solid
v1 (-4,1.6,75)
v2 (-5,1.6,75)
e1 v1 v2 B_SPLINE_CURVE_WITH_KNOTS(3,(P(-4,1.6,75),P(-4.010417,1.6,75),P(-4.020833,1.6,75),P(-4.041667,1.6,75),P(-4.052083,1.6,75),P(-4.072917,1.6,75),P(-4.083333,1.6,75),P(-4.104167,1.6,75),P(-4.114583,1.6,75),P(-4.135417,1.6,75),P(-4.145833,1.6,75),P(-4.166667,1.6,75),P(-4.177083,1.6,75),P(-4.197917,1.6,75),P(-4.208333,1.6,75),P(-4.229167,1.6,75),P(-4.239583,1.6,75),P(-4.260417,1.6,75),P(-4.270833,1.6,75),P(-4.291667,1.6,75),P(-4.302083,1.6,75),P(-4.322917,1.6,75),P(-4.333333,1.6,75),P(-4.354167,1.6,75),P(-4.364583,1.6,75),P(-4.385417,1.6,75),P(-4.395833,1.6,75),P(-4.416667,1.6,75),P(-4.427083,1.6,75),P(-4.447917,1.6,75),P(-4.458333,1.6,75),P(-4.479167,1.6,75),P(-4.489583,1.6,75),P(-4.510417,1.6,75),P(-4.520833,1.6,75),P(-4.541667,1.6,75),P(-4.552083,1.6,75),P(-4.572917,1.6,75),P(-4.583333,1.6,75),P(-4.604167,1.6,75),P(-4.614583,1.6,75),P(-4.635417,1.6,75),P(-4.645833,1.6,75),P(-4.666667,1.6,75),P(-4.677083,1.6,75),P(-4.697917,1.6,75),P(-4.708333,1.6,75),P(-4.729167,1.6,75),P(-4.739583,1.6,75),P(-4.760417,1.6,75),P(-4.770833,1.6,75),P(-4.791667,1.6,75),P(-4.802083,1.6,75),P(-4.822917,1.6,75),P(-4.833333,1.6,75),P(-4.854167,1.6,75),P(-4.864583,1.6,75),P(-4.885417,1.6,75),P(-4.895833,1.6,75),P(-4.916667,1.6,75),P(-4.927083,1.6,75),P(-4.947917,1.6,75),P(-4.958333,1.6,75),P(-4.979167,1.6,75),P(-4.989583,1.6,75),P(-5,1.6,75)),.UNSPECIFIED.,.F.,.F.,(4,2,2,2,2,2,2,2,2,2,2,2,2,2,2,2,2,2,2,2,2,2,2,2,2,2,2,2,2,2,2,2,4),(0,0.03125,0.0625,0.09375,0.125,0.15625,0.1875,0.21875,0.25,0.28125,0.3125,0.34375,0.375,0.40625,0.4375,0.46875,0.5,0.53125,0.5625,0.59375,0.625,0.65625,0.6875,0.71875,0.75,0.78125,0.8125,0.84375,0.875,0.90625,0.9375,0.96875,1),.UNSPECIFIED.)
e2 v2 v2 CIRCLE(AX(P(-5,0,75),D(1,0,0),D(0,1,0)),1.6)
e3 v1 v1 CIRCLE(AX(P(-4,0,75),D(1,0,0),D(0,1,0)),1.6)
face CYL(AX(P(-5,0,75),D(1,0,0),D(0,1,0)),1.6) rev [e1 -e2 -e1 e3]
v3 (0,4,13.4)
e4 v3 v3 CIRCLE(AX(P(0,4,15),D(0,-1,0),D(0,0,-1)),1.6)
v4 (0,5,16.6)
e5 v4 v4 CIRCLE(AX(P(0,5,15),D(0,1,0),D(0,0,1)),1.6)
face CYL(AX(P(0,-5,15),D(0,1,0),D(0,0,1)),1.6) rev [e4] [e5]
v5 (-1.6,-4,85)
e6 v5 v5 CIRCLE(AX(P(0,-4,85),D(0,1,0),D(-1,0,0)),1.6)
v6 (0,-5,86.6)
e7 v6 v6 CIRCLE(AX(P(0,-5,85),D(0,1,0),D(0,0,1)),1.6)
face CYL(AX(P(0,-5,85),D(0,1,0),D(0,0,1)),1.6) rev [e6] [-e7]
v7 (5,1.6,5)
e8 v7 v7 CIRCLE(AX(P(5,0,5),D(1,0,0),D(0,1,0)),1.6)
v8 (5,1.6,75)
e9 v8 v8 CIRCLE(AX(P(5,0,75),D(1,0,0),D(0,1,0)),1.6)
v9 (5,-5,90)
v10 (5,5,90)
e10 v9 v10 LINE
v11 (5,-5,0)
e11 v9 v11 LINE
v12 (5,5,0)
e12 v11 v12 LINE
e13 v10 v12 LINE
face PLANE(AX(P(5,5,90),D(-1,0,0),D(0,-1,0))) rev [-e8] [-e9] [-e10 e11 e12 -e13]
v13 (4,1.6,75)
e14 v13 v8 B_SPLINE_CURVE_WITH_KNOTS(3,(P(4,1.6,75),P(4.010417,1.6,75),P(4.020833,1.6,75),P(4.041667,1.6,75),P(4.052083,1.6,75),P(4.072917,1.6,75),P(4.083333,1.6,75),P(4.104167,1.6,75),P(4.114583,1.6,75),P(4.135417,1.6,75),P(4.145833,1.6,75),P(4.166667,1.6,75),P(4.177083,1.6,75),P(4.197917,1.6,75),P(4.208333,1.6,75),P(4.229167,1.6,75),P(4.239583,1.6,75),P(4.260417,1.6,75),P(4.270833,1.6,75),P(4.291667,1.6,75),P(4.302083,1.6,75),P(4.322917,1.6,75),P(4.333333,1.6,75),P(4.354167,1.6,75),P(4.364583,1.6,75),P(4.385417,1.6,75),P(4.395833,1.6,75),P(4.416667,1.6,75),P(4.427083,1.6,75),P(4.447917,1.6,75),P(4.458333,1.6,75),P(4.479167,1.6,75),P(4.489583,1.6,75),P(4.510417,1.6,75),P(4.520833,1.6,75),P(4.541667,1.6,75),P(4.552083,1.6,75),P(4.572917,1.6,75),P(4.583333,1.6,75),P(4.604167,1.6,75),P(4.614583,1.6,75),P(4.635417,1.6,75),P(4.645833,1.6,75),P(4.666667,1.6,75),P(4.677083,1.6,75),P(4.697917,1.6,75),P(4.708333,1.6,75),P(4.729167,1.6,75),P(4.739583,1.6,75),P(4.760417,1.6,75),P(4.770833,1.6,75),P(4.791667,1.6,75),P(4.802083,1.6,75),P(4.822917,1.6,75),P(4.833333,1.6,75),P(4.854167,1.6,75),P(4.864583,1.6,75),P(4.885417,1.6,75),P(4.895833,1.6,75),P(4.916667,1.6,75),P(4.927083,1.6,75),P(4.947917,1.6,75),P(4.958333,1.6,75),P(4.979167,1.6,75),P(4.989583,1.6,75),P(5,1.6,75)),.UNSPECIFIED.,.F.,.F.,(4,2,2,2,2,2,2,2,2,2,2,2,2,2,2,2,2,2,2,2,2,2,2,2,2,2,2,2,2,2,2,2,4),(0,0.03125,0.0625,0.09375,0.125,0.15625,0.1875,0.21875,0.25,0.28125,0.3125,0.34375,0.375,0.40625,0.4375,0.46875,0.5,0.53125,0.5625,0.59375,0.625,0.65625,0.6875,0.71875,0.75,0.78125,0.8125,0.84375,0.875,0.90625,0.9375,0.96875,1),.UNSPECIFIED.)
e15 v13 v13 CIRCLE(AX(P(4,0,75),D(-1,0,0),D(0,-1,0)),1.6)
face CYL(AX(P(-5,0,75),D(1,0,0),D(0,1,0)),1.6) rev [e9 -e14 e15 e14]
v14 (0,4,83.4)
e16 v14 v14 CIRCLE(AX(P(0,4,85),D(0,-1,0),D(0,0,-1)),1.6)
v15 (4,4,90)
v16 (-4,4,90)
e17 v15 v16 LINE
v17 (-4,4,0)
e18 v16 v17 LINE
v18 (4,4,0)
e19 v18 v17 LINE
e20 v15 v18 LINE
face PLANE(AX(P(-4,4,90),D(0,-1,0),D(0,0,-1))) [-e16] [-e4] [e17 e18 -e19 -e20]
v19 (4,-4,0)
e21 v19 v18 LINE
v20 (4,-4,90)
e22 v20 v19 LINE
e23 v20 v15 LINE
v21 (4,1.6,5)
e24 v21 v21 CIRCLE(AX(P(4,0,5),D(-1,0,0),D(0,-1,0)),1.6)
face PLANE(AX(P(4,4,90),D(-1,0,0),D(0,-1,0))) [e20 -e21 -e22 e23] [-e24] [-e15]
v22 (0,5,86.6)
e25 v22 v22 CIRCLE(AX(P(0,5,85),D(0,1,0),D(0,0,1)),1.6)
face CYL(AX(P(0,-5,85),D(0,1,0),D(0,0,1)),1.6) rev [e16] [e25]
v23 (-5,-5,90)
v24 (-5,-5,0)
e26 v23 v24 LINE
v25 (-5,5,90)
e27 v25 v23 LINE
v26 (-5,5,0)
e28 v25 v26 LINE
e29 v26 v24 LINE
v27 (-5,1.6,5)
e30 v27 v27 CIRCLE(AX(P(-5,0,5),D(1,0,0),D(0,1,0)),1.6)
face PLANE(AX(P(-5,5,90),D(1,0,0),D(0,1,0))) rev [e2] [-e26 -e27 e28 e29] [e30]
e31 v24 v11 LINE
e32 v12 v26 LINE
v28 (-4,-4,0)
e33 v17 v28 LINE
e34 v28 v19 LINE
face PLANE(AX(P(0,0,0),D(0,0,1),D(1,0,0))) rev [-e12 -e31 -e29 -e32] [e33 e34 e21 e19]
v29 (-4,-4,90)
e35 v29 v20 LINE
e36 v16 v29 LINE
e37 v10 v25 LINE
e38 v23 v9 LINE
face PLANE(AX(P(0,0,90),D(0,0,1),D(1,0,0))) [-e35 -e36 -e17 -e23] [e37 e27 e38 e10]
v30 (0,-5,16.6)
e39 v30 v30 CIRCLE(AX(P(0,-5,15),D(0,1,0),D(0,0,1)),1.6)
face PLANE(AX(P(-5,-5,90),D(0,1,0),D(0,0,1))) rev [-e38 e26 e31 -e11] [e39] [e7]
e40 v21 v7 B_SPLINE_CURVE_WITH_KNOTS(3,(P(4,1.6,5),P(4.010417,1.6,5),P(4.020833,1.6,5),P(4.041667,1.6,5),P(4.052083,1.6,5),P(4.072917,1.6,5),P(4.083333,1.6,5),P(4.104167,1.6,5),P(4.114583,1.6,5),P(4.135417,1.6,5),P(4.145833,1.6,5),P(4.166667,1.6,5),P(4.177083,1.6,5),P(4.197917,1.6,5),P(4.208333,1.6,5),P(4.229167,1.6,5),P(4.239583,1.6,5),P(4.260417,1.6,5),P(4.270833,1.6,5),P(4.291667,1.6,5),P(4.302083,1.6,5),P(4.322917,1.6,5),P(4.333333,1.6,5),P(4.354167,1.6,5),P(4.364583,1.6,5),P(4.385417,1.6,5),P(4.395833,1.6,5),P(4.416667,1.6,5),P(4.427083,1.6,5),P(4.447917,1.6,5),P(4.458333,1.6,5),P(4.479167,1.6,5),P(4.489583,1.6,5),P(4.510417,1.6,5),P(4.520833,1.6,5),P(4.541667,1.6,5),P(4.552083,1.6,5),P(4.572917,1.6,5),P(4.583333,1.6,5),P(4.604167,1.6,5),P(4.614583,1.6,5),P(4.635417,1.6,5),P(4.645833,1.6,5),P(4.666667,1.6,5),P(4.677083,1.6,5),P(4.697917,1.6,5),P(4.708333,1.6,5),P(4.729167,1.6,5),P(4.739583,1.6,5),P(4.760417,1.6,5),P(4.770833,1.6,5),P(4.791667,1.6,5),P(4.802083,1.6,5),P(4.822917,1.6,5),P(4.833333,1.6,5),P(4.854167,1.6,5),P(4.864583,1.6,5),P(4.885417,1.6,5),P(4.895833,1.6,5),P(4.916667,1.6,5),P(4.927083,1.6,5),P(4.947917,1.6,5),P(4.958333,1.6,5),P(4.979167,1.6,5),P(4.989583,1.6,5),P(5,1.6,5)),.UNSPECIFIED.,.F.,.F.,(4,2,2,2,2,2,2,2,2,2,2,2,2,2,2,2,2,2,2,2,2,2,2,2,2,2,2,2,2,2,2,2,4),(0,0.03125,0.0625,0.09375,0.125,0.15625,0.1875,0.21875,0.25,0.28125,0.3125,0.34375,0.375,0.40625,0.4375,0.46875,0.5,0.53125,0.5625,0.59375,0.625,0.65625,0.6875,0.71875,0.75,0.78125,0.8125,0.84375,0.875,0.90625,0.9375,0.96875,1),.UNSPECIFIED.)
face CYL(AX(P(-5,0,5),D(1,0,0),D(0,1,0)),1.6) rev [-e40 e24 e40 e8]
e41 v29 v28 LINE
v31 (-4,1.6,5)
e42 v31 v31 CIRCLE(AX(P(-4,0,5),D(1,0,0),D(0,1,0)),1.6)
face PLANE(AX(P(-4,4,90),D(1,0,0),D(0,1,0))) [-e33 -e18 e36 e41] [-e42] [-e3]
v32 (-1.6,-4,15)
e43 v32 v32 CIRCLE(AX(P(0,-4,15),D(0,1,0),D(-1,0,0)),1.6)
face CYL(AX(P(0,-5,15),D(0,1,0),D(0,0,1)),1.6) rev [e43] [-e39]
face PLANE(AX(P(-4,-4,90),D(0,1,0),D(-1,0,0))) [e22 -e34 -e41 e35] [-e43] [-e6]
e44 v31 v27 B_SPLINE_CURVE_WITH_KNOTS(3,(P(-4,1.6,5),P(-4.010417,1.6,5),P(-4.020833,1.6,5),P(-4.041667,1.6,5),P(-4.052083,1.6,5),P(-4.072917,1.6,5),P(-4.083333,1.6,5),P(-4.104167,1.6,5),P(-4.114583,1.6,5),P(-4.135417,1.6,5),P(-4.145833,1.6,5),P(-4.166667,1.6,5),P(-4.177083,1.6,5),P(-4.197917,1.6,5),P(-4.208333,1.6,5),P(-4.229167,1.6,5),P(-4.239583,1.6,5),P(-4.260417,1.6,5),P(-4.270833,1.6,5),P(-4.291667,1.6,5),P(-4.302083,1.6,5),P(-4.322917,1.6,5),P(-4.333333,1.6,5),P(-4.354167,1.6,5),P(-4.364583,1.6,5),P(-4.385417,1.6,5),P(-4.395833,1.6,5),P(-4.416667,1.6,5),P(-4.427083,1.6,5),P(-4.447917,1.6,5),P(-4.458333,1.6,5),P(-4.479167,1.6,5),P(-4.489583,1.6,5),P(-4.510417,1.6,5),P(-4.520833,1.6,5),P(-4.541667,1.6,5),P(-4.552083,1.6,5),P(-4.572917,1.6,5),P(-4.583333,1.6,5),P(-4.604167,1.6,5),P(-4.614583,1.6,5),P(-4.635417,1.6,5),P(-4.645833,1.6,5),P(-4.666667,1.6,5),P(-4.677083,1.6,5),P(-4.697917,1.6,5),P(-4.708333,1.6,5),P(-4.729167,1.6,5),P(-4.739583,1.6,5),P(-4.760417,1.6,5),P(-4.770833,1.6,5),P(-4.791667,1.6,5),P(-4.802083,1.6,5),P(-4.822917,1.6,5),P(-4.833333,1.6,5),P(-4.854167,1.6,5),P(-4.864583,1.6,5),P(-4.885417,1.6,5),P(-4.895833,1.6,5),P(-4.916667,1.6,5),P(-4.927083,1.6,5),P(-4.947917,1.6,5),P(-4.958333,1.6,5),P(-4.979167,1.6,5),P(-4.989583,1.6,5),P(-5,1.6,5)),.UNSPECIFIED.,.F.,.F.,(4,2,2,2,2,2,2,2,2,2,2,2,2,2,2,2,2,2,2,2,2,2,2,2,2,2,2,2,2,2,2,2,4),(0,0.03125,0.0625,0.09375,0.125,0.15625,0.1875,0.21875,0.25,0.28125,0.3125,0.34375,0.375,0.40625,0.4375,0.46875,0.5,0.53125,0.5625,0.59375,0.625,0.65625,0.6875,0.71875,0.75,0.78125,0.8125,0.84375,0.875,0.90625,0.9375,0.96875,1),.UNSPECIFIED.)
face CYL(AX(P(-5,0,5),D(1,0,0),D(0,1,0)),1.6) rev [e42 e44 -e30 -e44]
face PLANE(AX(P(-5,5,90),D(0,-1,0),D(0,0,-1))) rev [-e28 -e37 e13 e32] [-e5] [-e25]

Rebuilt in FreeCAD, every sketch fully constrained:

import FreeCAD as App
import Part
import Sketcher

V = App.Vector
Q = App.Units.Quantity

doc = App.newDocument("Part")
body = doc.addObject("PartDesign::Body", "Body")

# Sketch on XY plane
sketch1 = body.newObject("Sketcher::SketchObject", "Sketch")
sketch1.AttachmentSupport = (doc.getObject("XY_Plane"), [""])
sketch1.MapMode = "FlatFace"
sketch1.addGeometry([
    Part.LineSegment(V(-5, 5, 0), V(-5, -5, 0)),  # 0
    Part.LineSegment(V(-5, -5, 0), V(5, -5, 0)),  # 1
    Part.LineSegment(V(5, -5, 0), V(5, 5, 0)),  # 2
    Part.LineSegment(V(5, 5, 0), V(-5, 5, 0)),  # 3
    Part.LineSegment(V(4, -4, 0), V(-4, -4, 0)),  # 4
    Part.LineSegment(V(-4, -4, 0), V(-4, 4, 0)),  # 5
    Part.LineSegment(V(-4, 4, 0), V(4, 4, 0)),  # 6
    Part.LineSegment(V(4, 4, 0), V(4, -4, 0)),  # 7
], False)
sketch1.addConstraint([
    Sketcher.Constraint("Coincident", 0, 2, 1, 1),
    Sketcher.Constraint("Coincident", 1, 2, 2, 1),
    Sketcher.Constraint("Coincident", 2, 2, 3, 1),
    Sketcher.Constraint("Coincident", 3, 2, 0, 1),
    Sketcher.Constraint("Coincident", 4, 2, 5, 1),
    Sketcher.Constraint("Coincident", 5, 2, 6, 1),
    Sketcher.Constraint("Coincident", 6, 2, 7, 1),
    Sketcher.Constraint("Coincident", 7, 2, 4, 1),
    Sketcher.Constraint("Vertical", 0),
    Sketcher.Constraint("Horizontal", 1),
    Sketcher.Constraint("Vertical", 2),
    Sketcher.Constraint("Horizontal", 3),
    Sketcher.Constraint("Horizontal", 4),
    Sketcher.Constraint("Vertical", 5),
    Sketcher.Constraint("Horizontal", 6),
    Sketcher.Constraint("Vertical", 7),
    Sketcher.Constraint("Symmetric", 0, 2, 2, 2, -1, 1),
    Sketcher.Constraint("Symmetric", 4, 2, 6, 2, -1, 1),
    Sketcher.Constraint("Equal", 3, 0),
    Sketcher.Constraint("Equal", 6, 5),
    Sketcher.Constraint("DistanceX", 1, 1, 1, 2, Q("10 mm")),
    Sketcher.Constraint("DistanceX", 4, 2, 4, 1, Q("8 mm")),
])
pad1 = body.newObject("PartDesign::Pad", "Pad")
pad1.Profile = sketch1
pad1.Length = 90

# Sketch on YZ plane
sketch2 = body.newObject("Sketcher::SketchObject", "Sketch001")
sketch2.AttachmentSupport = (doc.getObject("YZ_Plane"), [""])
sketch2.MapMode = "FlatFace"
sketch2.AttachmentOffset = App.Placement(V(0, 0, 5), App.Rotation())
sketch2.addGeometry([
    Part.Circle(V(0, 75, 0), V(0, 0, 1), 1.6),
    Part.Circle(V(0, 5, 0), V(0, 0, 1), 1.6),
], False)
sketch2.addConstraint([
    Sketcher.Constraint("Equal", 0, 1),
    Sketcher.Constraint("PointOnObject", 0, 3, -2),
    Sketcher.Constraint("PointOnObject", 1, 3, -2),
    Sketcher.Constraint("Diameter", 0, Q("3.2 mm")),
    Sketcher.Constraint("DistanceY", -1, 1, 0, 3, Q("75 mm")),
    Sketcher.Constraint("DistanceY", -1, 1, 1, 3, Q("5 mm")),
])
pocket1 = body.newObject("PartDesign::Pocket", "Pocket")
pocket1.Profile = sketch2
pocket1.Type = "ThroughAll"

# Sketch on XZ plane
sketch3 = body.newObject("Sketcher::SketchObject", "Sketch002")
sketch3.AttachmentSupport = (doc.getObject("XZ_Plane"), [""])
sketch3.MapMode = "FlatFace"
sketch3.AttachmentOffset = App.Placement(V(0, 0, -5), App.Rotation())
sketch3.addGeometry([
    Part.Circle(V(0, 15, 0), V(0, 0, 1), 1.6),
    Part.Circle(V(0, 85, 0), V(0, 0, 1), 1.6),
], False)
sketch3.addConstraint([
    Sketcher.Constraint("Equal", 0, 1),
    Sketcher.Constraint("PointOnObject", 0, 3, -2),
    Sketcher.Constraint("PointOnObject", 1, 3, -2),
    Sketcher.Constraint("Diameter", 0, Q("3.2 mm")),
    Sketcher.Constraint("DistanceY", -1, 1, 0, 3, Q("15 mm")),
    Sketcher.Constraint("DistanceY", -1, 1, 1, 3, Q("85 mm")),
])
pocket2 = body.newObject("PartDesign::Pocket", "Pocket001")
pocket2.Profile = sketch3
pocket2.Type = "ThroughAll"
pocket2.Reversed = True

doc.recompute()
